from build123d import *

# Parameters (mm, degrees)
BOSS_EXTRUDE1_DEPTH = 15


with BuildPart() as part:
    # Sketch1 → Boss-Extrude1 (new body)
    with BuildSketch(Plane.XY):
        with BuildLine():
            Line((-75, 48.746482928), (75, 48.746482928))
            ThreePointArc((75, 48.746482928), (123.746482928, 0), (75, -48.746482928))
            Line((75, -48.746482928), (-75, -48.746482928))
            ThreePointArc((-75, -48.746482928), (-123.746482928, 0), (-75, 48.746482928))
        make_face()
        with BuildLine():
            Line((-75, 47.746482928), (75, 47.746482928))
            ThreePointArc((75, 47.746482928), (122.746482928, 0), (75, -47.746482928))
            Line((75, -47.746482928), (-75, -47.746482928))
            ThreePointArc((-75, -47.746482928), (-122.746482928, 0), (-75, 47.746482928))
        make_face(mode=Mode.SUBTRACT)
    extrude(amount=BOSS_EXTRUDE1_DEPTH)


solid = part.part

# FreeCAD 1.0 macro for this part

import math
import FreeCAD as App
import Part
import Sketcher

V = App.Vector
Q = App.Units.Quantity

doc = App.newDocument("Part")
params = doc.addObject("Spreadsheet::Sheet", "Params")
for row, (alias, value) in enumerate([
    ("sketch1_width", "150 mm"),
    ("pad1_length", "15 mm"),
], start=1):
    params.set(f"A{row}", alias)
    params.set(f"B{row}", "=" + value)
    params.setAlias(f"B{row}", alias)

body = doc.addObject("PartDesign::Body", "Body")

# Sketch on XY plane
sketch1 = doc.addObject("Sketcher::SketchObject", "Sketch")
body.addObject(sketch1)
sketch1.AttachmentSupport = (doc.XY_Plane, [""])
sketch1.MapMode = "FlatFace"
sketch1.addGeometry([
    Part.LineSegment(V(75, 49, 0), V(-75, 49, 0)),  # 0
    Part.ArcOfCircle(Part.Circle(V(-75, 0, 0), V(0, 0, 1), 49), math.radians(90), math.radians(270)),  # 1
    Part.LineSegment(V(-75, -49, 0), V(75, -49, 0)),  # 2
    Part.ArcOfCircle(Part.Circle(V(75, 0, 0), V(0, 0, 1), 49), math.radians(-90), math.radians(90)),  # 3
    Part.LineSegment(V(-75, 48, 0), V(75, 48, 0)),  # 4
    Part.ArcOfCircle(Part.Circle(V(75, 0, 0), V(0, 0, 1), 48), math.radians(-90), math.radians(90)),  # 5
    Part.LineSegment(V(75, -48, 0), V(-75, -48, 0)),  # 6
    Part.ArcOfCircle(Part.Circle(V(-75, 0, 0), V(0, 0, 1), 48), math.radians(90), math.radians(270)),  # 7
], False)
sketch1.addConstraint([
    Sketcher.Constraint("Tangent", 0, 2, 1, 1),
    Sketcher.Constraint("Tangent", 1, 2, 2, 1),
    Sketcher.Constraint("Tangent", 2, 2, 3, 1),
    Sketcher.Constraint("Tangent", 3, 2, 0, 1),
    Sketcher.Constraint("Tangent", 4, 2, 5, 2),
    Sketcher.Constraint("Tangent", 5, 1, 6, 1),
    Sketcher.Constraint("Tangent", 6, 2, 7, 2),
    Sketcher.Constraint("Tangent", 7, 1, 4, 1),
    Sketcher.Constraint("Horizontal", 0),
    Sketcher.Constraint("Horizontal", 2),
    Sketcher.Constraint("Horizontal", 4),
    Sketcher.Constraint("Horizontal", 6),
    Sketcher.Constraint("Coincident", 5, 3, 3, 3),
    Sketcher.Constraint("Symmetric", 1, 3, 3, 3, -1, 1),
    Sketcher.Constraint("Vertical", 7, 3, 0, 2),
    Sketcher.Constraint("DistanceX", 0, 2, 0, 1, Q("150 mm")),
    Sketcher.Constraint("DistanceY", 4, 2, 3, 2, Q("1 mm")),
    Sketcher.Constraint("Radius", 1, Q("48.746483 mm")),
])
sketch1.setExpression("Constraints[15]", "Params.sketch1_width")
pad1 = doc.addObject("PartDesign::Pad", "Pad")
body.addObject(pad1)
pad1.Profile = sketch1
pad1.setExpression("Length", "Params.pad1_length")

doc.recompute()
